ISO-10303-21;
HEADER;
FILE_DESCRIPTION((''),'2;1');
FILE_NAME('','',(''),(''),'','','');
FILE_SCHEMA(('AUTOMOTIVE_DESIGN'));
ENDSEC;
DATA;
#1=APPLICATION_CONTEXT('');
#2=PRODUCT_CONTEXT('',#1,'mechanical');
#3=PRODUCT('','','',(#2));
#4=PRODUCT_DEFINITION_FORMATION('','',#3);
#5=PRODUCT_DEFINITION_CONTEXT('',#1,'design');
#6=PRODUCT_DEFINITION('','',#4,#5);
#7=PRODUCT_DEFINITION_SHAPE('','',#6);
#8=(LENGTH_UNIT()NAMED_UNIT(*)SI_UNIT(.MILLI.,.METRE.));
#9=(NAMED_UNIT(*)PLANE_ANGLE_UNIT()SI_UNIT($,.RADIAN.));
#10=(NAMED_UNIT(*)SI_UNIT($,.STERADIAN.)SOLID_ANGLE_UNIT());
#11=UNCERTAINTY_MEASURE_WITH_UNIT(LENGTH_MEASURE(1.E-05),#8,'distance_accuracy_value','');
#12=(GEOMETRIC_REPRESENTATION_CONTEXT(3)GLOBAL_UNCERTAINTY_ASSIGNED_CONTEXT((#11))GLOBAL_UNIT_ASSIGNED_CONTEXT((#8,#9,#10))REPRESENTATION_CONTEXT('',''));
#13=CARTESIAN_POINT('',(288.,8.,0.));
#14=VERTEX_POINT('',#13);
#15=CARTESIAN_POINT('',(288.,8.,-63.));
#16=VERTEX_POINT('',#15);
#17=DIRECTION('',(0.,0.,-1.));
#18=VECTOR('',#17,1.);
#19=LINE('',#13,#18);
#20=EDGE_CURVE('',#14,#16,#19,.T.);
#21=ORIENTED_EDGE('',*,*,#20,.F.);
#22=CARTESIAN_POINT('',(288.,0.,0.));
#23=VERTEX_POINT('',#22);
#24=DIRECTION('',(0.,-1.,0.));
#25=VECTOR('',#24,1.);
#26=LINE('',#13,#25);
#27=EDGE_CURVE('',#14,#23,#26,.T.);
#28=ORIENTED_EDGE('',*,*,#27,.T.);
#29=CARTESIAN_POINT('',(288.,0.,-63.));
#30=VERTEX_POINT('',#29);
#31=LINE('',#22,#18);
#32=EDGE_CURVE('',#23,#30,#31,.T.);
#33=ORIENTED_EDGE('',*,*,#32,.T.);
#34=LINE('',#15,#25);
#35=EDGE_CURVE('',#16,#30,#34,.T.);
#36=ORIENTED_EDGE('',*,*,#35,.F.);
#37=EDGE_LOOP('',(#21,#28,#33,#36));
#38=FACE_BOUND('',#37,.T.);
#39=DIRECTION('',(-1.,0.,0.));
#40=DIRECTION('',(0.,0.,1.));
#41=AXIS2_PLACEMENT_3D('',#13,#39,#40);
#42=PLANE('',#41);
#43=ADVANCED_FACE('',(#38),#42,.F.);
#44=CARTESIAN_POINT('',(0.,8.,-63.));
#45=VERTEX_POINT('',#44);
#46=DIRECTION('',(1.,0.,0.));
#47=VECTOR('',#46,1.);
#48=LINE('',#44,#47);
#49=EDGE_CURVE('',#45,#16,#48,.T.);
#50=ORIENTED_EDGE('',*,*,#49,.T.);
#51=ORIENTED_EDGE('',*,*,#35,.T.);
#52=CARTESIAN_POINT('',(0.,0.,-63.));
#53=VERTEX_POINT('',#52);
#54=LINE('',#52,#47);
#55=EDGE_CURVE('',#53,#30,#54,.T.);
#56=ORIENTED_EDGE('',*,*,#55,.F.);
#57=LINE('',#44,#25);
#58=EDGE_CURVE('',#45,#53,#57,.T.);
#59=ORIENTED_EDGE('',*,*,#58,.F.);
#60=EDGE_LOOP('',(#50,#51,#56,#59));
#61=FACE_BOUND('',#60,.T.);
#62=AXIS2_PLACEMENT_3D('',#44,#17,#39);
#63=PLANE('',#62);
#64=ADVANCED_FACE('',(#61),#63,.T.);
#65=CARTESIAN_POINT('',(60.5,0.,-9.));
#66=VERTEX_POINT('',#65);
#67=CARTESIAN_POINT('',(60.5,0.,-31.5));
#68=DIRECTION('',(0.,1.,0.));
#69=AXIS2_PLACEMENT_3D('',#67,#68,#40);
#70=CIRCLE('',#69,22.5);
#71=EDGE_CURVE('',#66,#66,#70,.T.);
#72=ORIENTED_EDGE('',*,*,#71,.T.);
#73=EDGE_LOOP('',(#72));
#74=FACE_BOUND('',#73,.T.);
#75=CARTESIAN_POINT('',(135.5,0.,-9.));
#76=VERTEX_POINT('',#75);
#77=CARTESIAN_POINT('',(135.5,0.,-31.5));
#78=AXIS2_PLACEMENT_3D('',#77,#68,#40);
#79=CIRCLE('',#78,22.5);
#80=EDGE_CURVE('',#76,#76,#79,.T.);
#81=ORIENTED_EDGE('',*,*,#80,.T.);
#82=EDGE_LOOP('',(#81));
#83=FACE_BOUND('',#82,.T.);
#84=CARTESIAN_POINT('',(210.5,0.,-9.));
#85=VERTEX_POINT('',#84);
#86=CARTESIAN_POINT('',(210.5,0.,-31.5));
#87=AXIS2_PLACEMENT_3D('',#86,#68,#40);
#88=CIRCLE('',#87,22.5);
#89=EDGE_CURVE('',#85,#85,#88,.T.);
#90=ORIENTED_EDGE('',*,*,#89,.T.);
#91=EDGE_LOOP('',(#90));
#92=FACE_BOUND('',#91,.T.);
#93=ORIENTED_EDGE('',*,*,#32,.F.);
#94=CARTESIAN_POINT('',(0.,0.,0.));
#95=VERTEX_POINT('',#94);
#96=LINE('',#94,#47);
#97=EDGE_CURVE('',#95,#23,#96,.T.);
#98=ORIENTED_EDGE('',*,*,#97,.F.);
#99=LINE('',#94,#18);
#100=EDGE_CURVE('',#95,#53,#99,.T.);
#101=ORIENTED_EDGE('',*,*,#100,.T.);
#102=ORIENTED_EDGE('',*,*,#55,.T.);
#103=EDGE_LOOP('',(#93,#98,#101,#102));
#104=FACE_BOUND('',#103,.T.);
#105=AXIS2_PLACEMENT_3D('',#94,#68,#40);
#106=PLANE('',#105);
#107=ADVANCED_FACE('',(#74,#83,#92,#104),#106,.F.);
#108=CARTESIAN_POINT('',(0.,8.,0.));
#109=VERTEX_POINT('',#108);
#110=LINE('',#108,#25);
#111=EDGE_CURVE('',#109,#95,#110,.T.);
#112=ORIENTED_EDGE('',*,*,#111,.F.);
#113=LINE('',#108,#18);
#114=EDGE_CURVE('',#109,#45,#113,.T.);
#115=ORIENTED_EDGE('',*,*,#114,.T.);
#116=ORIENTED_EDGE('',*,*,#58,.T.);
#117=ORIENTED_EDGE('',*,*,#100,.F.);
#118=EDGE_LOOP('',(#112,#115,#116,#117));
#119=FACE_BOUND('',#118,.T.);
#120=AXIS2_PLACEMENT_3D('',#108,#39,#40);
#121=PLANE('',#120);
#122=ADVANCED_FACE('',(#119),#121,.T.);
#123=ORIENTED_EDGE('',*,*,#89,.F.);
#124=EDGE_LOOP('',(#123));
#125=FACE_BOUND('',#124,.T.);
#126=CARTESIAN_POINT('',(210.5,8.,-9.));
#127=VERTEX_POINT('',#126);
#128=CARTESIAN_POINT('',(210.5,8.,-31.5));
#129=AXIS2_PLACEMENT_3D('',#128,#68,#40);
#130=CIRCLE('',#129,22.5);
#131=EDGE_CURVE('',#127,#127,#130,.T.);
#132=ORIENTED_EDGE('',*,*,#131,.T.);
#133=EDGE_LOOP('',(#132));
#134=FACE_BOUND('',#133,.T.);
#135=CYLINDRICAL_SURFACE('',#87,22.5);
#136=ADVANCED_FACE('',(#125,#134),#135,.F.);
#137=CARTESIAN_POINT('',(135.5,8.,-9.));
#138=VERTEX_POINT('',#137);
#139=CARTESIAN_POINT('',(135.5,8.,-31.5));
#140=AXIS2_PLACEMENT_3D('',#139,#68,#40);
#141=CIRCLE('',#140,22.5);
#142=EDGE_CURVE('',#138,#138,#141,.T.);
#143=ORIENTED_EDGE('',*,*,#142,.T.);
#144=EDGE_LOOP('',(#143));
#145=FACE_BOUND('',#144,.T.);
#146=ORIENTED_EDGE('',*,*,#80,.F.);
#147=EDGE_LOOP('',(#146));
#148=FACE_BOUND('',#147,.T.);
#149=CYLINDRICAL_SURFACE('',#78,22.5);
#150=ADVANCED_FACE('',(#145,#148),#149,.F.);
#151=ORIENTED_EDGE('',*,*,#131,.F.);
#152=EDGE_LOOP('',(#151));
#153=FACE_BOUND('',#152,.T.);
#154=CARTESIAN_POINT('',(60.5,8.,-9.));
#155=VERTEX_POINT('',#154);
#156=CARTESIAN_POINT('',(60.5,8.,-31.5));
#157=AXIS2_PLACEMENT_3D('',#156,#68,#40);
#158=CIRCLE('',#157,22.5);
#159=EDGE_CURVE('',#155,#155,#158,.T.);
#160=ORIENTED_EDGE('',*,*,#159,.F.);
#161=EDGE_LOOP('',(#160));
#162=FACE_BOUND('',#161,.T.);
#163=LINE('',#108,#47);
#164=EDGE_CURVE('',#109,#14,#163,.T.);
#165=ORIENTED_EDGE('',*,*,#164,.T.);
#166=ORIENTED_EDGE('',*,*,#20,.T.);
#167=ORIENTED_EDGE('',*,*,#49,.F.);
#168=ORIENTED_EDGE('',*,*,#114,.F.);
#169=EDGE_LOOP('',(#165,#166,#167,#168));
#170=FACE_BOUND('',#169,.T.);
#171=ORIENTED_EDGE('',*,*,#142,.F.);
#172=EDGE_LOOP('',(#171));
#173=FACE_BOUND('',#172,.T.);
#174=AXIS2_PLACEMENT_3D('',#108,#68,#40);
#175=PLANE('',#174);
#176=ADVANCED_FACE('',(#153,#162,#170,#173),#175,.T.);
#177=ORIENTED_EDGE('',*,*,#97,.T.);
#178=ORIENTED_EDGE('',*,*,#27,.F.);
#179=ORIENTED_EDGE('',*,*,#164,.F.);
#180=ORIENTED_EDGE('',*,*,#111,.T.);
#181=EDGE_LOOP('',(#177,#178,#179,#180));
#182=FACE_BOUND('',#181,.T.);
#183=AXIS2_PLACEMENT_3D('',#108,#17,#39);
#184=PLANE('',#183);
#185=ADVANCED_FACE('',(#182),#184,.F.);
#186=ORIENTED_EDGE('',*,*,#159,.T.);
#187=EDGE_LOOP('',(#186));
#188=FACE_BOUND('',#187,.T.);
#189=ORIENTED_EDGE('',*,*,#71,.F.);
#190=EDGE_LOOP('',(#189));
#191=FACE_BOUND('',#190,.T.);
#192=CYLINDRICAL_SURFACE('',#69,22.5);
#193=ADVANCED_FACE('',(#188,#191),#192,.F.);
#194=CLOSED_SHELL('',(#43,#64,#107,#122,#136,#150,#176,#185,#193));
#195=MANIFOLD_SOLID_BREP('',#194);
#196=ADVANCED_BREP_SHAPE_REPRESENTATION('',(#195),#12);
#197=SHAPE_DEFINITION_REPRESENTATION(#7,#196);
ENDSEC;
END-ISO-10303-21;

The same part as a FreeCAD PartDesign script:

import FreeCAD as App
import Part
import Sketcher


def add_polygon(sketch, points):
    """Adds a closed chain of lines whose ends are joined by coincident constraints."""
    first, n = sketch.GeometryCount, len(points)
    for a, b in zip(points, points[1:] + points[:1]):
        sketch.addGeometry(Part.LineSegment(App.Vector(*a, 0), App.Vector(*b, 0)), False)
    for i in range(n):
        sketch.addConstraint(Sketcher.Constraint("Coincident", first + i, 2, first + (i + 1) % n, 1))

doc = App.newDocument("Part")
body = doc.addObject("PartDesign::Body", "Body")

sketch1 = doc.addObject("Sketcher::SketchObject", "Sketch")
body.addObject(sketch1)
sketch1.AttachmentSupport = (doc.XZ_Plane, [""])
sketch1.MapMode = "FlatFace"
add_polygon(sketch1, [(0, -63), (0, 0), (288, 0), (288, -63)])
sketch1.addConstraint([
    Sketcher.Constraint("Vertical", 0),
    Sketcher.Constraint("Horizontal", 1),
    Sketcher.Constraint("Vertical", 2),
    Sketcher.Constraint("Horizontal", 3),
    Sketcher.Constraint("Coincident", 0, 2, -1, 1),
    Sketcher.Constraint("DistanceX", 1, 1, 1, 2, 288.0),
    Sketcher.Constraint("DistanceY", 0, 1, 0, 2, 63.0),
])
pad1 = doc.addObject("PartDesign::Pad", "Pad")
body.addObject(pad1)
pad1.Profile = sketch1
pad1.Length = 8
pad1.Reversed = True

sketch2 = doc.addObject("Sketcher::SketchObject", "Sketch001")
body.addObject(sketch2)
sketch2.AttachmentSupport = (doc.XZ_Plane, [""])
sketch2.MapMode = "FlatFace"
sketch2.AttachmentOffset = App.Placement(App.Vector(0, 0, -8), App.Rotation())
sketch2.addGeometry(Part.Circle(App.Vector(60, -32, 0), App.Vector(0, 0, 1), 22), False)
sketch2.addConstraint([
    Sketcher.Constraint("Diameter", 0, 45.0),
    Sketcher.Constraint("DistanceX", -1, 1, 0, 3, 60.5),
    Sketcher.Constraint("DistanceY", 0, 3, -1, 1, 31.5),
])
pocket1 = doc.addObject("PartDesign::Pocket", "Pocket")
body.addObject(pocket1)
pocket1.Profile = sketch2
pocket1.Length = 8
pocket1.Reversed = True

sketch3 = doc.addObject("Sketcher::SketchObject", "Sketch002")
body.addObject(sketch3)
sketch3.AttachmentSupport = (doc.XZ_Plane, [""])
sketch3.MapMode = "FlatFace"
sketch3.AttachmentOffset = App.Placement(App.Vector(0, 0, -8), App.Rotation())
sketch3.addGeometry(Part.Circle(App.Vector(136, -32, 0), App.Vector(0, 0, 1), 22), False)
sketch3.addConstraint([
    Sketcher.Constraint("Diameter", 0, 45.0),
    Sketcher.Constraint("DistanceX", -1, 1, 0, 3, 135.5),
    Sketcher.Constraint("DistanceY", 0, 3, -1, 1, 31.5),
])
pocket2 = doc.addObject("PartDesign::Pocket", "Pocket001")
body.addObject(pocket2)
pocket2.Profile = sketch3
pocket2.Length = 8
pocket2.Reversed = True

sketch4 = doc.addObject("Sketcher::SketchObject", "Sketch003")
body.addObject(sketch4)
sketch4.AttachmentSupport = (doc.XZ_Plane, [""])
sketch4.MapMode = "FlatFace"
sketch4.AttachmentOffset = App.Placement(App.Vector(0, 0, -8), App.Rotation())
sketch4.addGeometry(Part.Circle(App.Vector(210, -32, 0), App.Vector(0, 0, 1), 22), False)
sketch4.addConstraint([
    Sketcher.Constraint("Diameter", 0, 45.0),
    Sketcher.Constraint("DistanceX", -1, 1, 0, 3, 210.5),
    Sketcher.Constraint("DistanceY", 0, 3, -1, 1, 31.5),
])
pocket3 = doc.addObject("PartDesign::Pocket", "Pocket002")
body.addObject(pocket3)
pocket3.Profile = sketch4
pocket3.Length = 8
pocket3.Reversed = True

doc.recompute()
